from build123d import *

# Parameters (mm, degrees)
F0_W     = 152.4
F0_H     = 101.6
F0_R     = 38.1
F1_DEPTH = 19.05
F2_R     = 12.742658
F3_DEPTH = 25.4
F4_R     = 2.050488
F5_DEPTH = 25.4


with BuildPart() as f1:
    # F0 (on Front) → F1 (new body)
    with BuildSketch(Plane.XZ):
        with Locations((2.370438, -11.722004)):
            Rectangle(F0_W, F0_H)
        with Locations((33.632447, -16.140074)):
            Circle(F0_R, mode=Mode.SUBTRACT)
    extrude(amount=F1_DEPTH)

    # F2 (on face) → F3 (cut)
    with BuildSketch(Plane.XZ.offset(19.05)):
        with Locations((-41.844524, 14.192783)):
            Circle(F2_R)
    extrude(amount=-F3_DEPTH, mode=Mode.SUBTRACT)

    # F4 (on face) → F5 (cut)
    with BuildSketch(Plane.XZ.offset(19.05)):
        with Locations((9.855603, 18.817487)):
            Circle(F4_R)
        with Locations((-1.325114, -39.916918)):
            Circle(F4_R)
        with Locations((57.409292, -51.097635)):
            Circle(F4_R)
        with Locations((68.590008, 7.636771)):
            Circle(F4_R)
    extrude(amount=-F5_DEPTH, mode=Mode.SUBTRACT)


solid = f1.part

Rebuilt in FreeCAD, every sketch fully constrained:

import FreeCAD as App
import Part
import Sketcher
from FreeCAD import Vector
Q = App.Units.Quantity

doc = App.newDocument("Part")
body = doc.addObject("PartDesign::Body", "Body")

# Sketch on XZ plane
sketch1 = doc.addObject("Sketcher::SketchObject", "Sketch")
body.addObject(sketch1)
sketch1.AttachmentSupport = (doc.XZ_Plane, [""])
sketch1.MapMode = "FlatFace"
sketch1.addGeometry([
    Part.LineSegment(Vector(-73.829562, 39.077996, 0), Vector(-73.829562, -62.522004, 0)),  # 0
    Part.LineSegment(Vector(-73.829562, -62.522004, 0), Vector(78.570438, -62.522004, 0)),  # 1
    Part.LineSegment(Vector(78.570438, -62.522004, 0), Vector(78.570438, 39.077996, 0)),  # 2
    Part.LineSegment(Vector(78.570438, 39.077996, 0), Vector(-73.829562, 39.077996, 0)),  # 3
    Part.Circle(Vector(33.632447, -16.140074, 0), Vector(0, 0, 1), 38.1),  # 4
], False)
sketch1.addConstraint([
    Sketcher.Constraint("Coincident", 0, 2, 1, 1),
    Sketcher.Constraint("Coincident", 1, 2, 2, 1),
    Sketcher.Constraint("Coincident", 2, 2, 3, 1),
    Sketcher.Constraint("Coincident", 3, 2, 0, 1),
    Sketcher.Constraint("Vertical", 0),
    Sketcher.Constraint("Horizontal", 1),
    Sketcher.Constraint("Vertical", 2),
    Sketcher.Constraint("Horizontal", 3),
    Sketcher.Constraint("Diameter", 4, Q("3 in")),
    Sketcher.Constraint("DistanceX", 1, 1, 1, 2, Q("6 in")),
    Sketcher.Constraint("DistanceY", 0, 2, 0, 1, Q("4 in")),
    Sketcher.Constraint("DistanceX", 0, 2, -1, 1, Q("73.829562 mm")),
    Sketcher.Constraint("DistanceX", 0, 2, 4, 3, Q("107.462009 mm")),
    Sketcher.Constraint("DistanceY", 0, 2, 4, 3, Q("46.38193 mm")),
    Sketcher.Constraint("DistanceY", 4, 3, -1, 1, Q("16.140074 mm")),
])
pad1 = doc.addObject("PartDesign::Pad", "Pad")
body.addObject(pad1)
pad1.Profile = sketch1
pad1.Length = Q("0.75 in")

# Sketch on XZ plane
sketch2 = doc.addObject("Sketcher::SketchObject", "Sketch001")
body.addObject(sketch2)
sketch2.AttachmentSupport = (doc.XZ_Plane, [""])
sketch2.MapMode = "FlatFace"
sketch2.AttachmentOffset = App.Placement(Vector(0, 0, 0.75 * 25.4), App.Rotation())
sketch2.addGeometry(Part.Circle(Vector(-41.844524, 14.192783, 0), Vector(0, 0, 1), 12.742658), False)
sketch2.addConstraint([
    Sketcher.Constraint("Diameter", 0, Q("25.485316 mm")),
    Sketcher.Constraint("DistanceX", 0, 3, -1, 1, Q("41.844524 mm")),
    Sketcher.Constraint("DistanceY", -1, 1, 0, 3, Q("14.192783 mm")),
])
pocket1 = doc.addObject("PartDesign::Pocket", "Pocket")
body.addObject(pocket1)
pocket1.Profile = sketch2
pocket1.Length = Q("1 in")

# Sketch on XZ plane
sketch3 = doc.addObject("Sketcher::SketchObject", "Sketch002")
body.addObject(sketch3)
sketch3.AttachmentSupport = (doc.XZ_Plane, [""])
sketch3.MapMode = "FlatFace"
sketch3.AttachmentOffset = App.Placement(Vector(0, 0, 0.75 * 25.4), App.Rotation())
sketch3.addGeometry([
    Part.Circle(Vector(9.855603, 18.817487, 0), Vector(0, 0, 1), 2.050488),
    Part.Circle(Vector(-1.325114, -39.916918, 0), Vector(0, 0, 1), 2.050488),
    Part.Circle(Vector(57.409292, -51.097635, 0), Vector(0, 0, 1), 2.050488),
    Part.Circle(Vector(68.590008, 7.636771, 0), Vector(0, 0, 1), 2.050488),
], False)
sketch3.addConstraint([
    Sketcher.Constraint("Equal", 0, 1),
    Sketcher.Constraint("Equal", 1, 2),
    Sketcher.Constraint("Equal", 2, 3),
    Sketcher.Constraint("Diameter", 0, Q("4.100976 mm")),
    Sketcher.Constraint("DistanceY", 1, 3, -1, 1, Q("39.916918 mm")),
    Sketcher.Constraint("DistanceY", -1, 1, 3, 3, Q("7.636771 mm")),
    Sketcher.Constraint("DistanceX", 0, 3, 2, 3, Q("47.553689 mm")),
    Sketcher.Constraint("DistanceY", 2, 3, 0, 3, Q("69.915122 mm")),
    Sketcher.Constraint("DistanceX", 1, 3, 3, 3, Q("69.915122 mm")),
    Sketcher.Constraint("DistanceX", -1, 1, 0, 3, Q("9.855603 mm")),
    Sketcher.Constraint("DistanceY", -1, 1, 0, 3, Q("18.817487 mm")),
    Sketcher.Constraint("DistanceX", 1, 3, -1, 1, Q("1.325114 mm")),
])
pocket2 = doc.addObject("PartDesign::Pocket", "Pocket001")
body.addObject(pocket2)
pocket2.Profile = sketch3
pocket2.Length = Q("1 in")

doc.recompute()
